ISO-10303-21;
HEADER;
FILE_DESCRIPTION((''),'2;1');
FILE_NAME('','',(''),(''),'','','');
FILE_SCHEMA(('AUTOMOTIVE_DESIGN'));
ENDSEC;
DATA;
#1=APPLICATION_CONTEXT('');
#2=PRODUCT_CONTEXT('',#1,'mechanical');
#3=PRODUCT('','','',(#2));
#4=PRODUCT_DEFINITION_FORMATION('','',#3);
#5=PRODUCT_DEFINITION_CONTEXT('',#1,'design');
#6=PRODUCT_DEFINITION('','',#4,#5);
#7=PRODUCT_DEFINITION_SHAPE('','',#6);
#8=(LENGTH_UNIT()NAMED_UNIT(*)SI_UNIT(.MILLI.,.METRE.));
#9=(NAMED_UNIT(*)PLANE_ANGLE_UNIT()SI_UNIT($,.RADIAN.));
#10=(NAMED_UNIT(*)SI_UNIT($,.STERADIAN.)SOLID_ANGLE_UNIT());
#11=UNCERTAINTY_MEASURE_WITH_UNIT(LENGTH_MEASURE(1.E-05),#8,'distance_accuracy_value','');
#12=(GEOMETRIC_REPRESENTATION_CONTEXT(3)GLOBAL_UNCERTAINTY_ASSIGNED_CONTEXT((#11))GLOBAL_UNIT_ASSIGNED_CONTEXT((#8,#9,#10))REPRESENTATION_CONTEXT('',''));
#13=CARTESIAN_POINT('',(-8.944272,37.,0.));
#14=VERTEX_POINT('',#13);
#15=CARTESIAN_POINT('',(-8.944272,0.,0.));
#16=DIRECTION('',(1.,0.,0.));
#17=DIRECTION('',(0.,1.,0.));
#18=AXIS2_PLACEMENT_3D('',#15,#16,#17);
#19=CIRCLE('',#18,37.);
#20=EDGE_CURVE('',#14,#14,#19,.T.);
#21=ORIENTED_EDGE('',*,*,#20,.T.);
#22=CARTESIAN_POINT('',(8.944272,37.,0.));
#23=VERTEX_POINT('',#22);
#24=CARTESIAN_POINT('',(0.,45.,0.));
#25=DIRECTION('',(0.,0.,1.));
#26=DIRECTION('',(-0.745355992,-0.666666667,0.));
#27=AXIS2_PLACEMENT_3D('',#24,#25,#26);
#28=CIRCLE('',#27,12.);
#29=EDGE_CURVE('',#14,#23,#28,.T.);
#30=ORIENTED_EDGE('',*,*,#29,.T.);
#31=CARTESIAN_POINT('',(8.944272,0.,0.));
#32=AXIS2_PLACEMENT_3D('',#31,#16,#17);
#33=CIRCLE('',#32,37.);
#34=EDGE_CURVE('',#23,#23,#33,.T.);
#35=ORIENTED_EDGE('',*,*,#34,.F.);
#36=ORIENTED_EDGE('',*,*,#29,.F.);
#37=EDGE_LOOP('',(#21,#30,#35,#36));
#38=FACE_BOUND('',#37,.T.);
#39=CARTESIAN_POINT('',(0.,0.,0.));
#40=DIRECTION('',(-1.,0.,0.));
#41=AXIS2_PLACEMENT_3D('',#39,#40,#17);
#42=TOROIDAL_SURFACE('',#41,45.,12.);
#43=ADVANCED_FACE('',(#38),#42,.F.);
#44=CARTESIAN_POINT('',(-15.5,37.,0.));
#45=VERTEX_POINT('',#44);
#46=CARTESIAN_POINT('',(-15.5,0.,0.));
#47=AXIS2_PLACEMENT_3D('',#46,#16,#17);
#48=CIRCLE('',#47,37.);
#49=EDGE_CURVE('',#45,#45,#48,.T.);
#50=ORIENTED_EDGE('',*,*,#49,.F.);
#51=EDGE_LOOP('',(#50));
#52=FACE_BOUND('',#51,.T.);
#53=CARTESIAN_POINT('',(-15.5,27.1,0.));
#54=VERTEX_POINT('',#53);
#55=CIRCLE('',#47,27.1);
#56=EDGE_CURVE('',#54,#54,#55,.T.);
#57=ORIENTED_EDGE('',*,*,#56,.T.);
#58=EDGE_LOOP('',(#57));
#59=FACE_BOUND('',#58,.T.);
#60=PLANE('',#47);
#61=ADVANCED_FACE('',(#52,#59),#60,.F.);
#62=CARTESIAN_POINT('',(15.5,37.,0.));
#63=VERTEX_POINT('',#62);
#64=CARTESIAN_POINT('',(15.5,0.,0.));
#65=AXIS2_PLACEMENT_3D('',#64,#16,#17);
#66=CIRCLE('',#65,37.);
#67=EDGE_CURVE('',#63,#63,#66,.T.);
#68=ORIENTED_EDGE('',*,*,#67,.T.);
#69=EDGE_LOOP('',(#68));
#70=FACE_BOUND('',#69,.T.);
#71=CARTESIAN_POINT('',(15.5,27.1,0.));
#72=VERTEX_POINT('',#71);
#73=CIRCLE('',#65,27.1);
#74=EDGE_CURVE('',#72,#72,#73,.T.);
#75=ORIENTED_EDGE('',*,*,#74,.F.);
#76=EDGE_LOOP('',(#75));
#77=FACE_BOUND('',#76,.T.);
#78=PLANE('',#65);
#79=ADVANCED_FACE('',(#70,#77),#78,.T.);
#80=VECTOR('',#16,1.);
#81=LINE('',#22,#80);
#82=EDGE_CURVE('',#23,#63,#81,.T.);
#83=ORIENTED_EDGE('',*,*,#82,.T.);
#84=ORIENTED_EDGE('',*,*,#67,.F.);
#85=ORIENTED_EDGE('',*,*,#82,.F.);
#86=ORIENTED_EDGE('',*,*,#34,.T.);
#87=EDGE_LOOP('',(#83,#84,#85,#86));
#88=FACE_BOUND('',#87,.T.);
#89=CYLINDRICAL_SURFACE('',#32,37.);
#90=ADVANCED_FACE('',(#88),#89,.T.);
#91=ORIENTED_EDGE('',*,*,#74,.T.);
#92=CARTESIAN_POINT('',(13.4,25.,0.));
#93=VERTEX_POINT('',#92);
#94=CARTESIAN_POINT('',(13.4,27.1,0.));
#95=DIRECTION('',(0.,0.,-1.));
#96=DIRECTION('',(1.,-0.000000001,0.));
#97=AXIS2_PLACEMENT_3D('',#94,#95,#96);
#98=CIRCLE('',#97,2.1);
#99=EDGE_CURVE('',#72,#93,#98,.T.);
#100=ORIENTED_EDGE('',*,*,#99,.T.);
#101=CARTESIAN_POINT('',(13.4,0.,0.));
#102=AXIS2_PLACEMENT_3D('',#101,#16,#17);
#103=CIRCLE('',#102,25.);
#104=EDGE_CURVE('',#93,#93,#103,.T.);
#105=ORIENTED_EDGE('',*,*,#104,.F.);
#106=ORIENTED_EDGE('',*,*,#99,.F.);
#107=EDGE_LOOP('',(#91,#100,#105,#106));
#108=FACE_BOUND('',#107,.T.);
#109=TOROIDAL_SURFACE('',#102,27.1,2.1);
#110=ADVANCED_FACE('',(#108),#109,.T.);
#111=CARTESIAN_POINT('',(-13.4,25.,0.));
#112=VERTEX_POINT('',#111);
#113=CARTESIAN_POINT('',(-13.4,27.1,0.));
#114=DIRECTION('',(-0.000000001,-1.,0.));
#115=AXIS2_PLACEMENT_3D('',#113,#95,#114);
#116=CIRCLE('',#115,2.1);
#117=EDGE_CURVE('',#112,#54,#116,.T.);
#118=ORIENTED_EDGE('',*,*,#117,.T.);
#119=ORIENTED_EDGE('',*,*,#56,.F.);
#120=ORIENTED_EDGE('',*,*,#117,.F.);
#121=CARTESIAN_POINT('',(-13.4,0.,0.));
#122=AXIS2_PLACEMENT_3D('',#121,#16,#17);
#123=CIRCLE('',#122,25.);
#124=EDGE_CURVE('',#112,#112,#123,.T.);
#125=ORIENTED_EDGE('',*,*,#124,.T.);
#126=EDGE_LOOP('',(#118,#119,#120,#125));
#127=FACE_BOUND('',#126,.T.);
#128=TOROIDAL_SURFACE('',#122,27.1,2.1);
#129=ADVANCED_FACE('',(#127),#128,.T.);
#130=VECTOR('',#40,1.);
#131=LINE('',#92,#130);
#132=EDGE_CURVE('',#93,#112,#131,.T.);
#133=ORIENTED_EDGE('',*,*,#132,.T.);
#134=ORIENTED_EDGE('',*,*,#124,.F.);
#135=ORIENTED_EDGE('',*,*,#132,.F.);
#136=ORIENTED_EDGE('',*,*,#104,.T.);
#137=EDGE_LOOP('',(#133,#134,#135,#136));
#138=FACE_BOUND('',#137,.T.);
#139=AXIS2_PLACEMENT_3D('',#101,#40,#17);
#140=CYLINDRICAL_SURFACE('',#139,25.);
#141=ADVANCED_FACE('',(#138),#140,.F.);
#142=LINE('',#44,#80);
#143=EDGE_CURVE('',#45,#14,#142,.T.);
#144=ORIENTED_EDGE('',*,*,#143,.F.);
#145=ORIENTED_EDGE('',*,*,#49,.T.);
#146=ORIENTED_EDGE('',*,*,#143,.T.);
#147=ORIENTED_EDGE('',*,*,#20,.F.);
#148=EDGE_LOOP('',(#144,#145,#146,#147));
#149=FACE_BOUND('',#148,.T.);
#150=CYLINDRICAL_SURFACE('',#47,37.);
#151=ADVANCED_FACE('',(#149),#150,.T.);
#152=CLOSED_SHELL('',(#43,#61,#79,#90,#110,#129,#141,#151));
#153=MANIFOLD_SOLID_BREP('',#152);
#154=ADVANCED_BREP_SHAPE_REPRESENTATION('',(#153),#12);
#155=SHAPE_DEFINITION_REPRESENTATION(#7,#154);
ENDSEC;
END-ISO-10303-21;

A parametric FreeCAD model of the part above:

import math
import FreeCAD as App
import Part
import Sketcher

V = App.Vector

doc = App.newDocument("Part")
body = doc.addObject("PartDesign::Body", "Body")

sketch1 = doc.addObject("Sketcher::SketchObject", "Sketch")
body.addObject(sketch1)
sketch1.AttachmentSupport = (doc.XY_Plane, [""])
sketch1.MapMode = "FlatFace"
sketch1.addGeometry([
    Part.LineSegment(V(-8.9, 37, 0), V(-15.5, 37, 0)),
    Part.LineSegment(V(-15.5, 37, 0), V(-15.5, 27.1, 0)),
    Part.ArcOfCircle(Part.Circle(V(-13.4, 27.1, 0), V(0, 0, 1), 2.1), math.radians(-180), math.radians(-90)),
    Part.LineSegment(V(-13.4, 25, 0), V(13.4, 25, 0)),
    Part.ArcOfCircle(Part.Circle(V(13.4, 27.1, 0), V(0, 0, 1), 2.1), math.radians(-90), math.radians(0)),
    Part.LineSegment(V(15.5, 27.1, 0), V(15.5, 37, 0)),
    Part.LineSegment(V(15.5, 37, 0), V(8.9, 37, 0)),
    Part.ArcOfCircle(Part.Circle(V(0, 45, 0), V(0, 0, 1), 12), math.radians(-138), math.radians(-42)),
], False)
sketch1.addConstraint([
    Sketcher.Constraint("Coincident", 0, 2, 1, 1),
    Sketcher.Constraint("Tangent", 1, 2, 2, 1),
    Sketcher.Constraint("Tangent", 2, 2, 3, 1),
    Sketcher.Constraint("Tangent", 3, 2, 4, 1),
    Sketcher.Constraint("Tangent", 4, 2, 5, 1),
    Sketcher.Constraint("Coincident", 5, 2, 6, 1),
    Sketcher.Constraint("Coincident", 6, 2, 7, 2),
    Sketcher.Constraint("Coincident", 7, 1, 0, 1),
    Sketcher.Constraint("Horizontal", 0),
    Sketcher.Constraint("Vertical", 1),
    Sketcher.Constraint("Horizontal", 3),
    Sketcher.Constraint("Vertical", 5),
    Sketcher.Constraint("Horizontal", 6),
    Sketcher.Constraint("Equal", 2, 4),
    Sketcher.Constraint("Symmetric", 0, 2, 5, 2, -2),
    Sketcher.Constraint("PointOnObject", 7, 3, -2),
    Sketcher.Constraint("Radius", 7, 12.0),
    Sketcher.Constraint("Radius", 2, 2.1),
    Sketcher.Constraint("DistanceX", 3, 1, 3, 2, 26.8),
    Sketcher.Constraint("DistanceY", 1, 2, 1, 1, 9.9),
    Sketcher.Constraint("DistanceY", -1, 1, 7, 3, 45.0),
    Sketcher.Constraint("DistanceY", -1, 1, 0, 2, 37.0),
])
revolution = doc.addObject("PartDesign::Revolution", "Revolution")
body.addObject(revolution)
revolution.Profile = sketch1
revolution.ReferenceAxis = (sketch1, ["H_Axis"])
revolution.Angle = 360

doc.recompute()
